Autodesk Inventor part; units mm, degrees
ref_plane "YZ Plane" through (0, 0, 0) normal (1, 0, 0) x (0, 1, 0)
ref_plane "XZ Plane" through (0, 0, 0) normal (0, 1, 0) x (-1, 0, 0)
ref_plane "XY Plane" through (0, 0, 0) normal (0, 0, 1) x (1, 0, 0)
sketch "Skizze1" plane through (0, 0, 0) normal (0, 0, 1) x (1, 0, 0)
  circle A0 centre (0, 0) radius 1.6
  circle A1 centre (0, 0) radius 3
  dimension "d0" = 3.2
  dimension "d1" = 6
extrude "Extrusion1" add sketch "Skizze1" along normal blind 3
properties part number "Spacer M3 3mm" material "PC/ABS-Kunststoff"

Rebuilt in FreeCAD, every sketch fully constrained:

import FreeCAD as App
import Part
import Sketcher
from FreeCAD import Vector
Q = App.Units.Quantity

doc = App.newDocument("Part")
body = doc.addObject("PartDesign::Body", "Body")

sketch1 = body.newObject("Sketcher::SketchObject", "Sketch")
sketch1.AttachmentSupport = (doc.getObject("XY_Plane"), [""])
sketch1.MapMode = "FlatFace"
sketch1.addGeometry([
    Part.Circle(Vector(0, 0, 0), Vector(0, 0, 1), 3),
    Part.Circle(Vector(0, 0, 0), Vector(0, 0, 1), 1.6),
], False)
sketch1.addConstraint([
    Sketcher.Constraint("Coincident", 0, 3, -1, 1),
    Sketcher.Constraint("Coincident", 1, 3, -1, 1),
    Sketcher.Constraint("Diameter", 0, Q("6 mm")),
    Sketcher.Constraint("Diameter", 1, Q("3.2 mm")),
])
pad1 = body.newObject("PartDesign::Pad", "Pad")
pad1.Profile = sketch1
pad1.Length = 3

doc.recompute()
